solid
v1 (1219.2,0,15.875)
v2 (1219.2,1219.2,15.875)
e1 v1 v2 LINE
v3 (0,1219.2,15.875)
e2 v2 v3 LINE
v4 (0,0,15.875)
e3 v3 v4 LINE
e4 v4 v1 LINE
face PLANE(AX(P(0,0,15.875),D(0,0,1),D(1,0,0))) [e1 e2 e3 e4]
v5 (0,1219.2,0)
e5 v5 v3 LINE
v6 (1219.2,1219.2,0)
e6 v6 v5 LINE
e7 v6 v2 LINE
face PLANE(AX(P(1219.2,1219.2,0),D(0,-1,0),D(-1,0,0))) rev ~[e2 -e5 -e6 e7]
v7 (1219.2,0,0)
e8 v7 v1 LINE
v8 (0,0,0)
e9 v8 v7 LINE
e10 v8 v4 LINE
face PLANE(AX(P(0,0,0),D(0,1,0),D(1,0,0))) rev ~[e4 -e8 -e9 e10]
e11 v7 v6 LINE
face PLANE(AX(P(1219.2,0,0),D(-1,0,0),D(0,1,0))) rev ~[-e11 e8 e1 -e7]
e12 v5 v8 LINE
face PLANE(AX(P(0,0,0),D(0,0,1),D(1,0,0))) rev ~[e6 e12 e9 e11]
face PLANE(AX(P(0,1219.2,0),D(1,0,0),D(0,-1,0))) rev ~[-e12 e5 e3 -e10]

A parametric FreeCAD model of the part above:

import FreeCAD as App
import Part
import Sketcher
Q = App.Units.Quantity

doc = App.newDocument("Part")
params = doc.addObject("Spreadsheet::Sheet", "Params")
for row, (alias, value) in enumerate([
    ("sketch1_width", "48 in"),
    ("pad1_length", "0.625 in"),
], start=1):
    params.set(f"A{row}", alias)
    params.set(f"B{row}", "=" + value)
    params.setAlias(f"B{row}", alias)

body = doc.addObject("PartDesign::Body", "Body")

# Sketch on XY plane
sketch1 = body.newObject("Sketcher::SketchObject", "Sketch")
sketch1.AttachmentSupport = (doc.getObject("XY_Plane"), [""])
sketch1.MapMode = "FlatFace"
sketch1.addGeometry([
    Part.LineSegment(App.Vector(0, 1219, 0), App.Vector(0, 0, 0)),
    Part.LineSegment(App.Vector(0, 0, 0), App.Vector(1219, 0, 0)),
    Part.LineSegment(App.Vector(1219, 0, 0), App.Vector(1219, 1219, 0)),
    Part.LineSegment(App.Vector(1219, 1219, 0), App.Vector(0, 1219, 0)),
], False)
sketch1.addConstraint([
    Sketcher.Constraint("Coincident", 0, 2, 1, 1),
    Sketcher.Constraint("Coincident", 1, 2, 2, 1),
    Sketcher.Constraint("Coincident", 2, 2, 3, 1),
    Sketcher.Constraint("Coincident", 3, 2, 0, 1),
    Sketcher.Constraint("Vertical", 0),
    Sketcher.Constraint("Horizontal", 1),
    Sketcher.Constraint("Vertical", 2),
    Sketcher.Constraint("Horizontal", 3),
    Sketcher.Constraint("Coincident", 0, 2, -1, 1),
    Sketcher.Constraint("Equal", 3, 0),
    Sketcher.Constraint("DistanceX", 1, 1, 1, 2, Q("48 in")),
])
sketch1.setExpression("Constraints[10]", "Params.sketch1_width")
pad1 = body.newObject("PartDesign::Pad", "Pad")
pad1.Profile = sketch1
pad1.setExpression("Length", "Params.pad1_length")

doc.recompute()
